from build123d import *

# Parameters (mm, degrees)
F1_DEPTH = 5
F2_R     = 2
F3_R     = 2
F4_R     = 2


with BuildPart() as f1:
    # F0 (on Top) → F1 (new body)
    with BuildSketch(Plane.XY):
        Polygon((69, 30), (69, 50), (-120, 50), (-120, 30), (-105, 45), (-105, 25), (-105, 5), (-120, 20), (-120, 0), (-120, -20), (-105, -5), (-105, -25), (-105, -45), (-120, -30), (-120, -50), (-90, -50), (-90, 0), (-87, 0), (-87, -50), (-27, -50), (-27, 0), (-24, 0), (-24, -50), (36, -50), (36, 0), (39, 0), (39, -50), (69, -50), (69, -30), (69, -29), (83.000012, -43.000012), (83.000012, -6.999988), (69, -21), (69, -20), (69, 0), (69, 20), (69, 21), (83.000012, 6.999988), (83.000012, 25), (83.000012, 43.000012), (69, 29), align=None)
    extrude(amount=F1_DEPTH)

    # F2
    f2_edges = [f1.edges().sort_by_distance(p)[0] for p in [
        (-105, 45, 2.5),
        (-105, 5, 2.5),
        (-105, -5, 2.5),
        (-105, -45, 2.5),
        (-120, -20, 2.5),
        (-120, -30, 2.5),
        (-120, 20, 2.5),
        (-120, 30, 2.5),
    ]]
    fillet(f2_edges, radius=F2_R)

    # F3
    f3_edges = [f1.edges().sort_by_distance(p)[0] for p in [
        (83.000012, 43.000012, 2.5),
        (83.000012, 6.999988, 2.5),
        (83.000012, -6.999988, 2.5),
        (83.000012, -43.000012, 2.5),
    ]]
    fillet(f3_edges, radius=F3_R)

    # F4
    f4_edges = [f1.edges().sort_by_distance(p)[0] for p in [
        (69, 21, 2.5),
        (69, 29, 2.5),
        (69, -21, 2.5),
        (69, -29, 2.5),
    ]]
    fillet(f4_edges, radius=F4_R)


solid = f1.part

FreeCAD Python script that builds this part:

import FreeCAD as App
import Part
import Sketcher


def edges_at(feature, points):
    """Names of the edges that pass closest to the given points."""
    edges = feature.Shape.Edges
    near = lambda p: min(range(len(edges)), key=lambda i: edges[i].distToShape(Part.Vertex(*p))[0])
    return sorted({f"Edge{near(p) + 1}" for p in points})

doc = App.newDocument("Part")
body = doc.addObject("PartDesign::Body", "Body")

sketch1 = body.newObject("Sketcher::SketchObject", "Sketch")
sketch1.AttachmentSupport = (doc.getObject("XY_Plane"), [""])
sketch1.MapMode = "FlatFace"
sketch1.addGeometry(Part.LineSegment(App.Vector(69, 50, 0), App.Vector(-120, 50, 0)), False)
sketch1.addGeometry(Part.LineSegment(App.Vector(-120, 50, 0), App.Vector(-120, 30, 0)), False)
sketch1.addGeometry(Part.LineSegment(App.Vector(-120, 30, 0), App.Vector(-105, 45, 0)), False)
sketch1.addGeometry(Part.LineSegment(App.Vector(-105, 45, 0), App.Vector(-105, 5, 0)), False)
sketch1.addGeometry(Part.LineSegment(App.Vector(-105, 5, 0), App.Vector(-120, 20, 0)), False)
sketch1.addGeometry(Part.LineSegment(App.Vector(-120, 20, 0), App.Vector(-120, -20, 0)), False)
sketch1.addGeometry(Part.LineSegment(App.Vector(-120, -20, 0), App.Vector(-105, -5, 0)), False)
sketch1.addGeometry(Part.LineSegment(App.Vector(-105, -5, 0), App.Vector(-105, -45, 0)), False)
sketch1.addGeometry(Part.LineSegment(App.Vector(-105, -45, 0), App.Vector(-120, -30, 0)), False)
sketch1.addGeometry(Part.LineSegment(App.Vector(-120, -30, 0), App.Vector(-120, -50, 0)), False)
sketch1.addGeometry(Part.LineSegment(App.Vector(-120, -50, 0), App.Vector(-90, -50, 0)), False)
sketch1.addGeometry(Part.LineSegment(App.Vector(-90, -50, 0), App.Vector(-90, 0, 0)), False)
sketch1.addGeometry(Part.LineSegment(App.Vector(-90, 0, 0), App.Vector(-87, 0, 0)), False)
sketch1.addGeometry(Part.LineSegment(App.Vector(-87, 0, 0), App.Vector(-87, -50, 0)), False)
sketch1.addGeometry(Part.LineSegment(App.Vector(-87, -50, 0), App.Vector(-27, -50, 0)), False)
sketch1.addGeometry(Part.LineSegment(App.Vector(-27, -50, 0), App.Vector(-27, 0, 0)), False)
sketch1.addGeometry(Part.LineSegment(App.Vector(-27, 0, 0), App.Vector(-24, 0, 0)), False)
sketch1.addGeometry(Part.LineSegment(App.Vector(-24, 0, 0), App.Vector(-24, -50, 0)), False)
sketch1.addGeometry(Part.LineSegment(App.Vector(-24, -50, 0), App.Vector(36, -50, 0)), False)
sketch1.addGeometry(Part.LineSegment(App.Vector(36, -50, 0), App.Vector(36, 0, 0)), False)
sketch1.addGeometry(Part.LineSegment(App.Vector(36, 0, 0), App.Vector(39, 0, 0)), False)
sketch1.addGeometry(Part.LineSegment(App.Vector(39, 0, 0), App.Vector(39, -50, 0)), False)
sketch1.addGeometry(Part.LineSegment(App.Vector(39, -50, 0), App.Vector(69, -50, 0)), False)
sketch1.addGeometry(Part.LineSegment(App.Vector(69, -50, 0), App.Vector(69, -29, 0)), False)
sketch1.addGeometry(Part.LineSegment(App.Vector(69, -29, 0), App.Vector(83.000012, -43.000012, 0)), False)
sketch1.addGeometry(Part.LineSegment(App.Vector(83.000012, -43.000012, 0), App.Vector(83.000012, -6.999988, 0)), False)
sketch1.addGeometry(Part.LineSegment(App.Vector(83.000012, -6.999988, 0), App.Vector(69, -21, 0)), False)
sketch1.addGeometry(Part.LineSegment(App.Vector(69, -21, 0), App.Vector(69, 21, 0)), False)
sketch1.addGeometry(Part.LineSegment(App.Vector(69, 21, 0), App.Vector(83.000012, 6.999988, 0)), False)
sketch1.addGeometry(Part.LineSegment(App.Vector(83.000012, 6.999988, 0), App.Vector(83.000012, 43.000012, 0)), False)
sketch1.addGeometry(Part.LineSegment(App.Vector(83.000012, 43.000012, 0), App.Vector(69, 29, 0)), False)
sketch1.addGeometry(Part.LineSegment(App.Vector(69, 29, 0), App.Vector(69, 50, 0)), False)
sketch1.addConstraint(Sketcher.Constraint("Coincident", 0, 2, 1, 1))
sketch1.addConstraint(Sketcher.Constraint("Coincident", 1, 2, 2, 1))
sketch1.addConstraint(Sketcher.Constraint("Coincident", 2, 2, 3, 1))
sketch1.addConstraint(Sketcher.Constraint("Coincident", 3, 2, 4, 1))
sketch1.addConstraint(Sketcher.Constraint("Coincident", 4, 2, 5, 1))
sketch1.addConstraint(Sketcher.Constraint("Coincident", 5, 2, 6, 1))
sketch1.addConstraint(Sketcher.Constraint("Coincident", 6, 2, 7, 1))
sketch1.addConstraint(Sketcher.Constraint("Coincident", 7, 2, 8, 1))
sketch1.addConstraint(Sketcher.Constraint("Coincident", 8, 2, 9, 1))
sketch1.addConstraint(Sketcher.Constraint("Coincident", 9, 2, 10, 1))
sketch1.addConstraint(Sketcher.Constraint("Coincident", 10, 2, 11, 1))
sketch1.addConstraint(Sketcher.Constraint("Coincident", 11, 2, 12, 1))
sketch1.addConstraint(Sketcher.Constraint("Coincident", 12, 2, 13, 1))
sketch1.addConstraint(Sketcher.Constraint("Coincident", 13, 2, 14, 1))
sketch1.addConstraint(Sketcher.Constraint("Coincident", 14, 2, 15, 1))
sketch1.addConstraint(Sketcher.Constraint("Coincident", 15, 2, 16, 1))
sketch1.addConstraint(Sketcher.Constraint("Coincident", 16, 2, 17, 1))
sketch1.addConstraint(Sketcher.Constraint("Coincident", 17, 2, 18, 1))
sketch1.addConstraint(Sketcher.Constraint("Coincident", 18, 2, 19, 1))
sketch1.addConstraint(Sketcher.Constraint("Coincident", 19, 2, 20, 1))
sketch1.addConstraint(Sketcher.Constraint("Coincident", 20, 2, 21, 1))
sketch1.addConstraint(Sketcher.Constraint("Coincident", 21, 2, 22, 1))
sketch1.addConstraint(Sketcher.Constraint("Coincident", 22, 2, 23, 1))
sketch1.addConstraint(Sketcher.Constraint("Coincident", 23, 2, 24, 1))
sketch1.addConstraint(Sketcher.Constraint("Coincident", 24, 2, 25, 1))
sketch1.addConstraint(Sketcher.Constraint("Coincident", 25, 2, 26, 1))
sketch1.addConstraint(Sketcher.Constraint("Coincident", 26, 2, 27, 1))
sketch1.addConstraint(Sketcher.Constraint("Coincident", 27, 2, 28, 1))
sketch1.addConstraint(Sketcher.Constraint("Coincident", 28, 2, 29, 1))
sketch1.addConstraint(Sketcher.Constraint("Coincident", 29, 2, 30, 1))
sketch1.addConstraint(Sketcher.Constraint("Coincident", 30, 2, 31, 1))
sketch1.addConstraint(Sketcher.Constraint("Coincident", 31, 2, 0, 1))
sketch1.addConstraint(Sketcher.Constraint("Horizontal", 0))
sketch1.addConstraint(Sketcher.Constraint("Vertical", 1))
sketch1.addConstraint(Sketcher.Constraint("Vertical", 3))
sketch1.addConstraint(Sketcher.Constraint("Vertical", 5))
sketch1.addConstraint(Sketcher.Constraint("Vertical", 7))
sketch1.addConstraint(Sketcher.Constraint("Vertical", 9))
sketch1.addConstraint(Sketcher.Constraint("Horizontal", 10))
sketch1.addConstraint(Sketcher.Constraint("Vertical", 11))
sketch1.addConstraint(Sketcher.Constraint("Horizontal", 12))
sketch1.addConstraint(Sketcher.Constraint("Vertical", 13))
sketch1.addConstraint(Sketcher.Constraint("Horizontal", 14))
sketch1.addConstraint(Sketcher.Constraint("Vertical", 15))
sketch1.addConstraint(Sketcher.Constraint("Horizontal", 16))
sketch1.addConstraint(Sketcher.Constraint("Vertical", 17))
sketch1.addConstraint(Sketcher.Constraint("Horizontal", 18))
sketch1.addConstraint(Sketcher.Constraint("Vertical", 19))
sketch1.addConstraint(Sketcher.Constraint("Horizontal", 20))
sketch1.addConstraint(Sketcher.Constraint("Vertical", 21))
sketch1.addConstraint(Sketcher.Constraint("Horizontal", 22))
sketch1.addConstraint(Sketcher.Constraint("Vertical", 23))
sketch1.addConstraint(Sketcher.Constraint("Vertical", 25))
sketch1.addConstraint(Sketcher.Constraint("Vertical", 27))
sketch1.addConstraint(Sketcher.Constraint("Vertical", 29))
sketch1.addConstraint(Sketcher.Constraint("Vertical", 31))
sketch1.addConstraint(Sketcher.Constraint("Symmetric", 3, 2, 6, 2, -1))
sketch1.addConstraint(Sketcher.Constraint("Symmetric", 1, 2, 8, 2, -1))
sketch1.addConstraint(Sketcher.Constraint("Symmetric", 25, 2, 28, 2, -1))
sketch1.addConstraint(Sketcher.Constraint("Symmetric", 23, 2, 30, 2, -1))
sketch1.addConstraint(Sketcher.Constraint("PointOnObject", 11, 2, -1))
sketch1.addConstraint(Sketcher.Constraint("PointOnObject", 15, 2, -1))
sketch1.addConstraint(Sketcher.Constraint("PointOnObject", 19, 2, -1))
sketch1.addConstraint(Sketcher.Constraint("Perpendicular", 2, 4))
sketch1.addConstraint(Sketcher.Constraint("Perpendicular", 4, 6))
sketch1.addConstraint(Sketcher.Constraint("Perpendicular", 6, 8))
sketch1.addConstraint(Sketcher.Constraint("Parallel", 8, 24))
sketch1.addConstraint(Sketcher.Constraint("Perpendicular", 24, 26))
sketch1.addConstraint(Sketcher.Constraint("Perpendicular", 26, 28))
sketch1.addConstraint(Sketcher.Constraint("Perpendicular", 28, 30))
sketch1.addConstraint(Sketcher.Constraint("Horizontal", 10, 2, 13, 2))
sketch1.addConstraint(Sketcher.Constraint("Horizontal", 14, 2, 17, 2))
sketch1.addConstraint(Sketcher.Constraint("Horizontal", 18, 2, 21, 2))
sketch1.addConstraint(Sketcher.Constraint("Vertical", 1, 2, 4, 2))
sketch1.addConstraint(Sketcher.Constraint("Vertical", 23, 2, 26, 2))
sketch1.addConstraint(Sketcher.Constraint("Equal", 12, 16))
sketch1.addConstraint(Sketcher.Constraint("Equal", 14, 18))
sketch1.addConstraint(Sketcher.Constraint("Equal", 16, 20))
sketch1.addConstraint(Sketcher.Constraint("Equal", 10, 22))
sketch1.addConstraint(Sketcher.Constraint("Equal", 3, 5))
sketch1.addConstraint(Sketcher.Constraint("Equal", 5, 7))
sketch1.addConstraint(Sketcher.Constraint("Equal", 1, 9))
sketch1.addConstraint(Sketcher.Constraint("DistanceX", 0, 2, 0, 1, 189.0))
sketch1.addConstraint(Sketcher.Constraint("DistanceX", 10, 1, 10, 2, 30.0))
sketch1.addConstraint(Sketcher.Constraint("DistanceX", 12, 1, 12, 2, 3.0))
sketch1.addConstraint(Sketcher.Constraint("DistanceY", 1, 2, 1, 1, 20.0))
sketch1.addConstraint(Sketcher.Constraint("DistanceY", 3, 2, 3, 1, 40.0))
sketch1.addConstraint(Sketcher.Constraint("DistanceY", 11, 1, 11, 2, 50.0))
sketch1.addConstraint(Sketcher.Constraint("DistanceY", 23, 1, 23, 2, 21.0))
sketch1.addConstraint(Sketcher.Constraint("DistanceY", 27, 1, 27, 2, 42.0))
sketch1.addConstraint(Sketcher.Constraint("DistanceX", 0, 2, -1, 1, 120.0))
sketch1.addConstraint(Sketcher.Constraint("DistanceY", 25, 1, 25, 2, 36.000024))
pad1 = body.newObject("PartDesign::Pad", "Pad")
pad1.Profile = sketch1
pad1.Length = 5
doc.recompute()

fillet = body.newObject("PartDesign::Fillet", "Fillet")
fillet.Base = (pad1, edges_at(pad1, [
    (-105, 45, 2.5),
    (-105, 5, 2.5),
    (-105, -5, 2.5),
    (-105, -45, 2.5),
    (-120, -20, 2.5),
    (-120, -30, 2.5),
    (-120, 20, 2.5),
    (-120, 30, 2.5),
]))
fillet.Radius = 2
doc.recompute()

fillet2 = body.newObject("PartDesign::Fillet", "Fillet001")
fillet2.Base = (fillet, edges_at(fillet, [
    (83, 43, 2.5),
    (83, 7, 2.5),
    (83, -7, 2.5),
    (83, -43, 2.5),
]))
fillet2.Radius = 2
doc.recompute()

fillet3 = body.newObject("PartDesign::Fillet", "Fillet002")
fillet3.Base = (fillet2, edges_at(fillet2, [
    (69, 21, 2.5),
    (69, 29, 2.5),
    (69, -21, 2.5),
    (69, -29, 2.5),
]))
fillet3.Radius = 2

doc.recompute()
